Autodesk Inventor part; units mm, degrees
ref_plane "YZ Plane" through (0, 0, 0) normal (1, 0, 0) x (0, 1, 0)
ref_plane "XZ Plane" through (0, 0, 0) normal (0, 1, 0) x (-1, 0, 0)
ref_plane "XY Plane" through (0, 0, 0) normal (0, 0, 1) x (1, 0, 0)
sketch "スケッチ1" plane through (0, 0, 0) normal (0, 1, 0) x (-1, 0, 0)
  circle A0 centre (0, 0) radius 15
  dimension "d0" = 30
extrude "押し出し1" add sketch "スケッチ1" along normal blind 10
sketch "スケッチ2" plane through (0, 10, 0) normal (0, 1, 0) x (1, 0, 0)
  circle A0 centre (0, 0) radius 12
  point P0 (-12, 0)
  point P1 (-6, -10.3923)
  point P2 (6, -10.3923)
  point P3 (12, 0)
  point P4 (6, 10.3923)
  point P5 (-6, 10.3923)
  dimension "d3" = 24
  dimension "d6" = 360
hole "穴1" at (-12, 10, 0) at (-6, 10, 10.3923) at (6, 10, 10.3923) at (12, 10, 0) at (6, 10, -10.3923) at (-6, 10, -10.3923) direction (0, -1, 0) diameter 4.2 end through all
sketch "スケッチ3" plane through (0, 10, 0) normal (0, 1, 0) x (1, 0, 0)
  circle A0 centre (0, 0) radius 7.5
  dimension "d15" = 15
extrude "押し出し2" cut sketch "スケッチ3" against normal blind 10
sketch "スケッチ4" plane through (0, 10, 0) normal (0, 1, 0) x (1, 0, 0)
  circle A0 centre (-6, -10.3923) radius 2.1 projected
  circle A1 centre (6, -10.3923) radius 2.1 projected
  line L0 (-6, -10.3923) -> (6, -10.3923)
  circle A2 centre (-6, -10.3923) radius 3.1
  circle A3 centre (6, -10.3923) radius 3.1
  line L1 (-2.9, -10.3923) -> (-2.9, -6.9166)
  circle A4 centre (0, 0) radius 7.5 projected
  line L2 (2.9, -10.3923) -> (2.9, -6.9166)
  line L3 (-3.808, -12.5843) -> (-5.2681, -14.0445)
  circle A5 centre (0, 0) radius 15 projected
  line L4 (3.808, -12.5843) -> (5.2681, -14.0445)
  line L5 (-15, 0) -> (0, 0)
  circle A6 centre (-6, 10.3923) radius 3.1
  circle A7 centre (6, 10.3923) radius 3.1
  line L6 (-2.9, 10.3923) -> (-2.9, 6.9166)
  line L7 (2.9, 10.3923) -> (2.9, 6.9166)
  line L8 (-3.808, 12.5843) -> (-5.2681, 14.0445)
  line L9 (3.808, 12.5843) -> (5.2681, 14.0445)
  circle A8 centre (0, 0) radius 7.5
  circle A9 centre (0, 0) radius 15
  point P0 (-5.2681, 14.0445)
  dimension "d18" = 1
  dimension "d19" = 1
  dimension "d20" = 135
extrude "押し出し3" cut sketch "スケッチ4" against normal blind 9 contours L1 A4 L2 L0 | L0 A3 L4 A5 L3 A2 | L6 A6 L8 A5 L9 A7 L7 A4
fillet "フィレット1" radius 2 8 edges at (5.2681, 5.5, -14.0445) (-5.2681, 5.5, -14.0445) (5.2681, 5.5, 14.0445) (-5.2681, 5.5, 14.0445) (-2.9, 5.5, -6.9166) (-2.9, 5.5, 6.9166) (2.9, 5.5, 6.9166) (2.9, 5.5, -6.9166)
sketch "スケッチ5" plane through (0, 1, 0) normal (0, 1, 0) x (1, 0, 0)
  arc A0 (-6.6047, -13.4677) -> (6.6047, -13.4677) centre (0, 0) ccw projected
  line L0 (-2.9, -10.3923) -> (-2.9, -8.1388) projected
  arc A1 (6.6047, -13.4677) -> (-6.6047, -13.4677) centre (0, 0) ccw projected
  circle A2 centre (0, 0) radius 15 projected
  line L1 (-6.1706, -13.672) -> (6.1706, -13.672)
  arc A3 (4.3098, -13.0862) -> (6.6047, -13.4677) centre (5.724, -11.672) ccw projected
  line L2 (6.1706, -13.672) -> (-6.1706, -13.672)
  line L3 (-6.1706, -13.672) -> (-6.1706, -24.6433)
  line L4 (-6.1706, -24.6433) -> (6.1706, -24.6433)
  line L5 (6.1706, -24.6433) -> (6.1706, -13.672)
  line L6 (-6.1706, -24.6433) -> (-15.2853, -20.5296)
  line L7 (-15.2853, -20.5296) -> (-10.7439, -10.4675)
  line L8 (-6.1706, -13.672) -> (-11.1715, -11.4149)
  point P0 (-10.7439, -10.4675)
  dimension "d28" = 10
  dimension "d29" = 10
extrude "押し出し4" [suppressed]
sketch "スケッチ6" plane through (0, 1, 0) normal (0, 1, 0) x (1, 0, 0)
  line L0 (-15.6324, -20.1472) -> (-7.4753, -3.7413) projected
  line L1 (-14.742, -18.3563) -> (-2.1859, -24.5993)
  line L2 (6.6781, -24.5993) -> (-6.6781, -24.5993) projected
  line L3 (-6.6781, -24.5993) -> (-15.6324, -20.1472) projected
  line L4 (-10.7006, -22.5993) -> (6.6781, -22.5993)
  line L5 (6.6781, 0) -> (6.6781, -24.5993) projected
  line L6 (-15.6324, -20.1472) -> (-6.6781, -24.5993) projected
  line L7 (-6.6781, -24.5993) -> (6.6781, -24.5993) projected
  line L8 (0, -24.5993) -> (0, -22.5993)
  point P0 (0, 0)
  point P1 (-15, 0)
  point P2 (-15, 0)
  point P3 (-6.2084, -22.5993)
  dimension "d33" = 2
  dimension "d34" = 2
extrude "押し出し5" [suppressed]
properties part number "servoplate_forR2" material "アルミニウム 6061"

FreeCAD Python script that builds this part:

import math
import FreeCAD as App
import Part
import Sketcher

V = App.Vector


def edges_at(feature, points):
    """Names of the edges that pass closest to the given points."""
    edges = feature.Shape.Edges
    near = lambda p: min(range(len(edges)), key=lambda i: edges[i].distToShape(Part.Vertex(*p))[0])
    return sorted({f"Edge{near(p) + 1}" for p in points})

doc = App.newDocument("Part")
body = doc.addObject("PartDesign::Body", "Body")

# Sketch on XZ plane
sketch1 = body.newObject("Sketcher::SketchObject", "Sketch")
sketch1.AttachmentSupport = (doc.getObject("XZ_Plane"), [""])
sketch1.MapMode = "FlatFace"
sketch1.addGeometry(Part.Circle(V(0, 0, 0), V(0, 0, 1), 15), False)
sketch1.addConstraint([
    Sketcher.Constraint("Coincident", 0, 3, -1, 1),
    Sketcher.Constraint("Diameter", 0, 30.0),
])
pad1 = body.newObject("PartDesign::Pad", "Pad")
pad1.Profile = sketch1
pad1.Length = 10
pad1.Reversed = True

# Sketch on XZ plane
sketch2 = body.newObject("Sketcher::SketchObject", "Sketch001")
sketch2.AttachmentSupport = (doc.getObject("XZ_Plane"), [""])
sketch2.MapMode = "FlatFace"
sketch2.AttachmentOffset = App.Placement(V(0, 0, -10), App.Rotation())
sketch2.addGeometry([
    Part.Circle(V(-12, 0, 0), V(0, 0, 1), 2.1),  # 0
    Part.Circle(V(-6, 10.4, 0), V(0, 0, 1), 2.1),  # 1
    Part.Circle(V(6, 10.4, 0), V(0, 0, 1), 2.1),  # 2
    Part.Circle(V(12, 0, 0), V(0, 0, 1), 2.1),  # 3
    Part.Circle(V(6, -10.4, 0), V(0, 0, 1), 2.1),  # 4
    Part.Circle(V(-6, -10.4, 0), V(0, 0, 1), 2.1),  # 5
], False)
sketch2.addConstraint([
    Sketcher.Constraint("Equal", 0, 1),
    Sketcher.Constraint("Equal", 1, 2),
    Sketcher.Constraint("Equal", 2, 3),
    Sketcher.Constraint("Equal", 3, 4),
    Sketcher.Constraint("Equal", 4, 5),
    Sketcher.Constraint("Symmetric", 0, 3, 3, 3, -1, 1),
    Sketcher.Constraint("Symmetric", 1, 3, 4, 3, -1, 1),
    Sketcher.Constraint("Symmetric", 2, 3, 5, 3, -1, 1),
    Sketcher.Constraint("Symmetric", 1, 3, 2, 3, -2),
    Sketcher.Constraint("PointOnObject", 0, 3, -1),
    Sketcher.Constraint("Diameter", 0, 4.2),
    Sketcher.Constraint("DistanceX", 0, 3, -1, 1, 12.0),
    Sketcher.Constraint("DistanceX", 1, 3, -1, 1, 6.0),
    Sketcher.Constraint("DistanceY", -1, 1, 1, 3, 10.3923),
])
doc.recompute()
hole = body.newObject("PartDesign::Hole", "Hole")
hole.Profile = sketch2
hole.ThreadType = "None"
hole.Diameter = 4.2
hole.DepthType = "ThroughAll"
hole.Reversed = True

# Sketch on XZ plane
sketch3 = body.newObject("Sketcher::SketchObject", "Sketch002")
sketch3.AttachmentSupport = (doc.getObject("XZ_Plane"), [""])
sketch3.MapMode = "FlatFace"
sketch3.AttachmentOffset = App.Placement(V(0, 0, -10), App.Rotation())
sketch3.addGeometry(Part.Circle(V(0, 0, 0), V(0, 0, 1), 8), False)
sketch3.addConstraint([
    Sketcher.Constraint("Coincident", 0, 3, -1, 1),
    Sketcher.Constraint("Diameter", 0, 15.0),
])
pocket1 = body.newObject("PartDesign::Pocket", "Pocket")
pocket1.Profile = sketch3
pocket1.Length = 10
pocket1.Reversed = True

# Sketch on XZ plane
sketch4 = body.newObject("Sketcher::SketchObject", "Sketch003")
sketch4.AttachmentSupport = (doc.getObject("XZ_Plane"), [""])
sketch4.MapMode = "FlatFace"
sketch4.AttachmentOffset = App.Placement(V(0, 0, -10), App.Rotation())
sketch4.addGeometry([
    Part.LineSegment(V(-2.9, 6.9, 0), V(-2.9, 10.4, 0)),  # 0
    Part.ArcOfCircle(Part.Circle(V(-6, 10.4, 0), V(0, 0, 1), 3.1), math.radians(0), math.radians(45)),  # 1
    Part.LineSegment(V(-3.8, 12.6, 0), V(-5.3, 14, 0)),  # 2
    Part.ArcOfCircle(Part.Circle(V(0, 0, 0), V(0, 0, 1), 15), math.radians(69), math.radians(111)),  # 3
    Part.LineSegment(V(5.3, 14, 0), V(3.8, 12.6, 0)),  # 4
    Part.ArcOfCircle(Part.Circle(V(6, 10.4, 0), V(0, 0, 1), 3.1), math.radians(135), math.radians(180)),  # 5
    Part.LineSegment(V(2.9, 10.4, 0), V(2.9, 6.9, 0)),  # 6
    Part.ArcOfCircle(Part.Circle(V(0, 0, 0), V(0, 0, 1), 7.5), math.radians(67), math.radians(113)),  # 7
    Part.LineSegment(V(-2.9, -10.4, 0), V(-2.9, -6.9, 0)),  # 8
    Part.ArcOfCircle(Part.Circle(V(0, 0, 0), V(0, 0, 1), 7.5), math.radians(-113), math.radians(-67)),  # 9
    Part.LineSegment(V(2.9, -6.9, 0), V(2.9, -10.4, 0)),  # 10
    Part.ArcOfCircle(Part.Circle(V(6, -10.4, 0), V(0, 0, 1), 3.1), math.radians(180), math.radians(225)),  # 11
    Part.LineSegment(V(3.8, -12.6, 0), V(5.3, -14, 0)),  # 12
    Part.ArcOfCircle(Part.Circle(V(0, 0, 0), V(0, 0, 1), 15), math.radians(-111), math.radians(-69)),  # 13
    Part.LineSegment(V(-5.3, -14, 0), V(-3.8, -12.6, 0)),  # 14
    Part.ArcOfCircle(Part.Circle(V(-6, -10.4, 0), V(0, 0, 1), 3.1), math.radians(-45), math.radians(0)),  # 15
], False)
sketch4.addConstraint([
    Sketcher.Constraint("Tangent", 0, 2, 1, 1),
    Sketcher.Constraint("Tangent", 1, 2, 2, 1),
    Sketcher.Constraint("Coincident", 2, 2, 3, 2),
    Sketcher.Constraint("Coincident", 3, 1, 4, 1),
    Sketcher.Constraint("Tangent", 4, 2, 5, 1),
    Sketcher.Constraint("Tangent", 5, 2, 6, 1),
    Sketcher.Constraint("Coincident", 6, 2, 7, 1),
    Sketcher.Constraint("Coincident", 7, 2, 0, 1),
    Sketcher.Constraint("Coincident", 8, 2, 9, 1),
    Sketcher.Constraint("Coincident", 9, 2, 10, 1),
    Sketcher.Constraint("Tangent", 10, 2, 11, 1),
    Sketcher.Constraint("Tangent", 11, 2, 12, 1),
    Sketcher.Constraint("Coincident", 12, 2, 13, 2),
    Sketcher.Constraint("Coincident", 13, 1, 14, 1),
    Sketcher.Constraint("Tangent", 14, 2, 15, 1),
    Sketcher.Constraint("Tangent", 15, 2, 8, 1),
    Sketcher.Constraint("Vertical", 0),
    Sketcher.Constraint("Vertical", 6),
    Sketcher.Constraint("Vertical", 8),
    Sketcher.Constraint("Vertical", 10),
    Sketcher.Constraint("Coincident", 3, 3, -1, 1),
    Sketcher.Constraint("Coincident", 7, 3, -1, 1),
    Sketcher.Constraint("Coincident", 9, 3, -1, 1),
    Sketcher.Constraint("Coincident", 13, 3, -1, 1),
    Sketcher.Constraint("Equal", 1, 5),
    Sketcher.Constraint("Equal", 7, 9),
    Sketcher.Constraint("Equal", 5, 11),
    Sketcher.Constraint("Equal", 3, 13),
    Sketcher.Constraint("Equal", 11, 15),
    Sketcher.Constraint("Symmetric", 1, 3, 11, 3, -1, 1),
    Sketcher.Constraint("Symmetric", 5, 3, 15, 3, -1, 1),
    Sketcher.Constraint("Symmetric", 1, 3, 5, 3, -2),
    Sketcher.Constraint("Perpendicular", 2, 4),
    Sketcher.Constraint("Perpendicular", 4, 12),
    Sketcher.Constraint("Perpendicular", 12, 14),
    Sketcher.Constraint("Horizontal", 2, 2, 3, 1),
    Sketcher.Constraint("Radius", 3, 15.0),
    Sketcher.Constraint("Radius", 1, 3.1),
    Sketcher.Constraint("Radius", 7, 7.5),
    Sketcher.Constraint("DistanceX", 1, 3, -1, 1, 6.0),
    Sketcher.Constraint("DistanceX", 4, 2, 3, 1, 1.46),
])
pocket2 = body.newObject("PartDesign::Pocket", "Pocket001")
pocket2.Profile = sketch4
pocket2.Length = 9
pocket2.Reversed = True
doc.recompute()

fillet = body.newObject("PartDesign::Fillet", "Fillet")
fillet.Base = (pocket2, edges_at(pocket2, [
    (5.268, 5.5, -14.044),
    (-5.268, 5.5, -14.044),
    (5.268, 5.5, 14.044),
    (-5.268, 5.5, 14.044),
    (-2.9, 5.5, -6.917),
    (-2.9, 5.5, 6.917),
    (2.9, 5.5, 6.917),
    (2.9, 5.5, -6.917),
]))
fillet.Radius = 2

doc.recompute()
